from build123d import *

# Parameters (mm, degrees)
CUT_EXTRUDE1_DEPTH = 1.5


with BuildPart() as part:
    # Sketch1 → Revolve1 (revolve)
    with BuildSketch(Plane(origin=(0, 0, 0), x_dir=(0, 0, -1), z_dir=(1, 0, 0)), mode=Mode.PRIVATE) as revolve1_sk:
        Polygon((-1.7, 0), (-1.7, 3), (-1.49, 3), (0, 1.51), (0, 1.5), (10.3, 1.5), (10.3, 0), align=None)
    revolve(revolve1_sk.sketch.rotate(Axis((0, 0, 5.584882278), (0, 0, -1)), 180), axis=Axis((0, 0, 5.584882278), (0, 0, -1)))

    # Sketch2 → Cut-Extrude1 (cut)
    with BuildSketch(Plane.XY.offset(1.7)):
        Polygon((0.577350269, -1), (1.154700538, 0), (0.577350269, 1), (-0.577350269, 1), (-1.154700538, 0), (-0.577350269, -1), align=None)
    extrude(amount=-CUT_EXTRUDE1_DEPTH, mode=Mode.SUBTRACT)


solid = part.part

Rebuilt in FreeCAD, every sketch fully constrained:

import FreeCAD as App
import Part
import Sketcher
Q = App.Units.Quantity

doc = App.newDocument("Part")
params = doc.addObject("Spreadsheet::Sheet", "Params")
for row, (alias, value) in enumerate([
    ("sketch1_width", "3 mm"),
    ("sketch1_height", "12 mm"),
    ("sketch1_width2", "1.5 mm"),
    ("sketch1_height2", "10.3 mm"),
    ("sketch1_width3", "0.01 mm"),
    ("revolution_angle", "360 deg"),
    ("pocket1_length", "1.5 mm"),
], start=1):
    params.set(f"A{row}", alias)
    params.set(f"B{row}", "=" + value)
    params.setAlias(f"B{row}", alias)

body = doc.addObject("PartDesign::Body", "Body")

sketch1 = body.newObject("Sketcher::SketchObject", "Sketch")
sketch1.AttachmentSupport = (doc.getObject("YZ_Plane"), [""])
sketch1.MapMode = "FlatFace"
sketch1.addGeometry([
    Part.LineSegment(App.Vector(3, 1.7, 0), App.Vector(0, 1.7, 0)),
    Part.LineSegment(App.Vector(0, 1.7, 0), App.Vector(0, -10.3, 0)),
    Part.LineSegment(App.Vector(0, -10.3, 0), App.Vector(1.5, -10.3, 0)),
    Part.LineSegment(App.Vector(1.5, -10.3, 0), App.Vector(1.5, 0, 0)),
    Part.LineSegment(App.Vector(1.5, 0, 0), App.Vector(1.51, 0, 0)),
    Part.LineSegment(App.Vector(1.51, 0, 0), App.Vector(3, 1.49, 0)),
    Part.LineSegment(App.Vector(3, 1.49, 0), App.Vector(3, 1.7, 0)),
], False)
sketch1.addConstraint([
    Sketcher.Constraint("Coincident", 0, 2, 1, 1),
    Sketcher.Constraint("Coincident", 1, 2, 2, 1),
    Sketcher.Constraint("Coincident", 2, 2, 3, 1),
    Sketcher.Constraint("Coincident", 3, 2, 4, 1),
    Sketcher.Constraint("Coincident", 4, 2, 5, 1),
    Sketcher.Constraint("Coincident", 5, 2, 6, 1),
    Sketcher.Constraint("Coincident", 6, 2, 0, 1),
    Sketcher.Constraint("Horizontal", 0),
    Sketcher.Constraint("Vertical", 1),
    Sketcher.Constraint("Horizontal", 2),
    Sketcher.Constraint("Vertical", 3),
    Sketcher.Constraint("Horizontal", 4),
    Sketcher.Constraint("Vertical", 6),
    Sketcher.Constraint("PointOnObject", 0, 2, -2),
    Sketcher.Constraint("PointOnObject", 3, 2, -1),
    Sketcher.Constraint("DistanceX", 0, 2, 0, 1, Q("3 mm")),
    Sketcher.Constraint("DistanceY", 1, 2, 1, 1, Q("12 mm")),
    Sketcher.Constraint("Angle", 5, Q("45 deg")),
    Sketcher.Constraint("DistanceX", 2, 1, 2, 2, Q("1.5 mm")),
    Sketcher.Constraint("DistanceY", 3, 1, 3, 2, Q("10.3 mm")),
    Sketcher.Constraint("DistanceX", 4, 1, 4, 2, Q("0.01 mm")),
])
sketch1.setExpression("Constraints[15]", "Params.sketch1_width")
sketch1.setExpression("Constraints[16]", "Params.sketch1_height")
sketch1.setExpression("Constraints[18]", "Params.sketch1_width2")
sketch1.setExpression("Constraints[19]", "Params.sketch1_height2")
sketch1.setExpression("Constraints[20]", "Params.sketch1_width3")
revolution = body.newObject("PartDesign::Revolution", "Revolution")
revolution.Profile = sketch1
revolution.ReferenceAxis = (sketch1, ["V_Axis"])
revolution.setExpression("Angle", "Params.revolution_angle")

sketch2 = body.newObject("Sketcher::SketchObject", "Sketch001")
sketch2.AttachmentSupport = (doc.getObject("XY_Plane"), [""])
sketch2.MapMode = "FlatFace"
sketch2.AttachmentOffset = App.Placement(App.Vector(0, 0, 1.7), App.Rotation())
sketch2.addGeometry([
    Part.LineSegment(App.Vector(0.57735, -1, 0), App.Vector(1.154701, 0, 0)),
    Part.LineSegment(App.Vector(1.154701, 0, 0), App.Vector(0.57735, 1, 0)),
    Part.LineSegment(App.Vector(0.57735, 1, 0), App.Vector(-0.57735, 1, 0)),
    Part.LineSegment(App.Vector(-0.57735, 1, 0), App.Vector(-1.154701, 0, 0)),
    Part.LineSegment(App.Vector(-1.154701, 0, 0), App.Vector(-0.57735, -1, 0)),
    Part.LineSegment(App.Vector(-0.57735, -1, 0), App.Vector(0.57735, -1, 0)),
], False)
sketch2.addConstraint([
    Sketcher.Constraint("Coincident", 0, 2, 1, 1),
    Sketcher.Constraint("Coincident", 1, 2, 2, 1),
    Sketcher.Constraint("Coincident", 2, 2, 3, 1),
    Sketcher.Constraint("Coincident", 3, 2, 4, 1),
    Sketcher.Constraint("Coincident", 4, 2, 5, 1),
    Sketcher.Constraint("Coincident", 5, 2, 0, 1),
    Sketcher.Constraint("Horizontal", 2),
    Sketcher.Constraint("Horizontal", 5),
    Sketcher.Constraint("Symmetric", 0, 2, 3, 2, -1, 1),
    Sketcher.Constraint("Symmetric", 1, 2, 4, 2, -1, 1),
    Sketcher.Constraint("PointOnObject", 0, 2, -1),
    Sketcher.Constraint("Parallel", 0, 3),
    Sketcher.Constraint("Vertical", 2, 2, 4, 2),
    Sketcher.Constraint("Angle", 0, Q("60 deg")),
    Sketcher.Constraint("DistanceY", -1, 1, 1, 2, Q("1 mm")),
    Sketcher.Constraint("DistanceX", 2, 2, 2, 1, Q("1.154701 mm")),
])
pocket1 = body.newObject("PartDesign::Pocket", "Pocket")
pocket1.Profile = sketch2
pocket1.setExpression("Length", "Params.pocket1_length")

doc.recompute()
